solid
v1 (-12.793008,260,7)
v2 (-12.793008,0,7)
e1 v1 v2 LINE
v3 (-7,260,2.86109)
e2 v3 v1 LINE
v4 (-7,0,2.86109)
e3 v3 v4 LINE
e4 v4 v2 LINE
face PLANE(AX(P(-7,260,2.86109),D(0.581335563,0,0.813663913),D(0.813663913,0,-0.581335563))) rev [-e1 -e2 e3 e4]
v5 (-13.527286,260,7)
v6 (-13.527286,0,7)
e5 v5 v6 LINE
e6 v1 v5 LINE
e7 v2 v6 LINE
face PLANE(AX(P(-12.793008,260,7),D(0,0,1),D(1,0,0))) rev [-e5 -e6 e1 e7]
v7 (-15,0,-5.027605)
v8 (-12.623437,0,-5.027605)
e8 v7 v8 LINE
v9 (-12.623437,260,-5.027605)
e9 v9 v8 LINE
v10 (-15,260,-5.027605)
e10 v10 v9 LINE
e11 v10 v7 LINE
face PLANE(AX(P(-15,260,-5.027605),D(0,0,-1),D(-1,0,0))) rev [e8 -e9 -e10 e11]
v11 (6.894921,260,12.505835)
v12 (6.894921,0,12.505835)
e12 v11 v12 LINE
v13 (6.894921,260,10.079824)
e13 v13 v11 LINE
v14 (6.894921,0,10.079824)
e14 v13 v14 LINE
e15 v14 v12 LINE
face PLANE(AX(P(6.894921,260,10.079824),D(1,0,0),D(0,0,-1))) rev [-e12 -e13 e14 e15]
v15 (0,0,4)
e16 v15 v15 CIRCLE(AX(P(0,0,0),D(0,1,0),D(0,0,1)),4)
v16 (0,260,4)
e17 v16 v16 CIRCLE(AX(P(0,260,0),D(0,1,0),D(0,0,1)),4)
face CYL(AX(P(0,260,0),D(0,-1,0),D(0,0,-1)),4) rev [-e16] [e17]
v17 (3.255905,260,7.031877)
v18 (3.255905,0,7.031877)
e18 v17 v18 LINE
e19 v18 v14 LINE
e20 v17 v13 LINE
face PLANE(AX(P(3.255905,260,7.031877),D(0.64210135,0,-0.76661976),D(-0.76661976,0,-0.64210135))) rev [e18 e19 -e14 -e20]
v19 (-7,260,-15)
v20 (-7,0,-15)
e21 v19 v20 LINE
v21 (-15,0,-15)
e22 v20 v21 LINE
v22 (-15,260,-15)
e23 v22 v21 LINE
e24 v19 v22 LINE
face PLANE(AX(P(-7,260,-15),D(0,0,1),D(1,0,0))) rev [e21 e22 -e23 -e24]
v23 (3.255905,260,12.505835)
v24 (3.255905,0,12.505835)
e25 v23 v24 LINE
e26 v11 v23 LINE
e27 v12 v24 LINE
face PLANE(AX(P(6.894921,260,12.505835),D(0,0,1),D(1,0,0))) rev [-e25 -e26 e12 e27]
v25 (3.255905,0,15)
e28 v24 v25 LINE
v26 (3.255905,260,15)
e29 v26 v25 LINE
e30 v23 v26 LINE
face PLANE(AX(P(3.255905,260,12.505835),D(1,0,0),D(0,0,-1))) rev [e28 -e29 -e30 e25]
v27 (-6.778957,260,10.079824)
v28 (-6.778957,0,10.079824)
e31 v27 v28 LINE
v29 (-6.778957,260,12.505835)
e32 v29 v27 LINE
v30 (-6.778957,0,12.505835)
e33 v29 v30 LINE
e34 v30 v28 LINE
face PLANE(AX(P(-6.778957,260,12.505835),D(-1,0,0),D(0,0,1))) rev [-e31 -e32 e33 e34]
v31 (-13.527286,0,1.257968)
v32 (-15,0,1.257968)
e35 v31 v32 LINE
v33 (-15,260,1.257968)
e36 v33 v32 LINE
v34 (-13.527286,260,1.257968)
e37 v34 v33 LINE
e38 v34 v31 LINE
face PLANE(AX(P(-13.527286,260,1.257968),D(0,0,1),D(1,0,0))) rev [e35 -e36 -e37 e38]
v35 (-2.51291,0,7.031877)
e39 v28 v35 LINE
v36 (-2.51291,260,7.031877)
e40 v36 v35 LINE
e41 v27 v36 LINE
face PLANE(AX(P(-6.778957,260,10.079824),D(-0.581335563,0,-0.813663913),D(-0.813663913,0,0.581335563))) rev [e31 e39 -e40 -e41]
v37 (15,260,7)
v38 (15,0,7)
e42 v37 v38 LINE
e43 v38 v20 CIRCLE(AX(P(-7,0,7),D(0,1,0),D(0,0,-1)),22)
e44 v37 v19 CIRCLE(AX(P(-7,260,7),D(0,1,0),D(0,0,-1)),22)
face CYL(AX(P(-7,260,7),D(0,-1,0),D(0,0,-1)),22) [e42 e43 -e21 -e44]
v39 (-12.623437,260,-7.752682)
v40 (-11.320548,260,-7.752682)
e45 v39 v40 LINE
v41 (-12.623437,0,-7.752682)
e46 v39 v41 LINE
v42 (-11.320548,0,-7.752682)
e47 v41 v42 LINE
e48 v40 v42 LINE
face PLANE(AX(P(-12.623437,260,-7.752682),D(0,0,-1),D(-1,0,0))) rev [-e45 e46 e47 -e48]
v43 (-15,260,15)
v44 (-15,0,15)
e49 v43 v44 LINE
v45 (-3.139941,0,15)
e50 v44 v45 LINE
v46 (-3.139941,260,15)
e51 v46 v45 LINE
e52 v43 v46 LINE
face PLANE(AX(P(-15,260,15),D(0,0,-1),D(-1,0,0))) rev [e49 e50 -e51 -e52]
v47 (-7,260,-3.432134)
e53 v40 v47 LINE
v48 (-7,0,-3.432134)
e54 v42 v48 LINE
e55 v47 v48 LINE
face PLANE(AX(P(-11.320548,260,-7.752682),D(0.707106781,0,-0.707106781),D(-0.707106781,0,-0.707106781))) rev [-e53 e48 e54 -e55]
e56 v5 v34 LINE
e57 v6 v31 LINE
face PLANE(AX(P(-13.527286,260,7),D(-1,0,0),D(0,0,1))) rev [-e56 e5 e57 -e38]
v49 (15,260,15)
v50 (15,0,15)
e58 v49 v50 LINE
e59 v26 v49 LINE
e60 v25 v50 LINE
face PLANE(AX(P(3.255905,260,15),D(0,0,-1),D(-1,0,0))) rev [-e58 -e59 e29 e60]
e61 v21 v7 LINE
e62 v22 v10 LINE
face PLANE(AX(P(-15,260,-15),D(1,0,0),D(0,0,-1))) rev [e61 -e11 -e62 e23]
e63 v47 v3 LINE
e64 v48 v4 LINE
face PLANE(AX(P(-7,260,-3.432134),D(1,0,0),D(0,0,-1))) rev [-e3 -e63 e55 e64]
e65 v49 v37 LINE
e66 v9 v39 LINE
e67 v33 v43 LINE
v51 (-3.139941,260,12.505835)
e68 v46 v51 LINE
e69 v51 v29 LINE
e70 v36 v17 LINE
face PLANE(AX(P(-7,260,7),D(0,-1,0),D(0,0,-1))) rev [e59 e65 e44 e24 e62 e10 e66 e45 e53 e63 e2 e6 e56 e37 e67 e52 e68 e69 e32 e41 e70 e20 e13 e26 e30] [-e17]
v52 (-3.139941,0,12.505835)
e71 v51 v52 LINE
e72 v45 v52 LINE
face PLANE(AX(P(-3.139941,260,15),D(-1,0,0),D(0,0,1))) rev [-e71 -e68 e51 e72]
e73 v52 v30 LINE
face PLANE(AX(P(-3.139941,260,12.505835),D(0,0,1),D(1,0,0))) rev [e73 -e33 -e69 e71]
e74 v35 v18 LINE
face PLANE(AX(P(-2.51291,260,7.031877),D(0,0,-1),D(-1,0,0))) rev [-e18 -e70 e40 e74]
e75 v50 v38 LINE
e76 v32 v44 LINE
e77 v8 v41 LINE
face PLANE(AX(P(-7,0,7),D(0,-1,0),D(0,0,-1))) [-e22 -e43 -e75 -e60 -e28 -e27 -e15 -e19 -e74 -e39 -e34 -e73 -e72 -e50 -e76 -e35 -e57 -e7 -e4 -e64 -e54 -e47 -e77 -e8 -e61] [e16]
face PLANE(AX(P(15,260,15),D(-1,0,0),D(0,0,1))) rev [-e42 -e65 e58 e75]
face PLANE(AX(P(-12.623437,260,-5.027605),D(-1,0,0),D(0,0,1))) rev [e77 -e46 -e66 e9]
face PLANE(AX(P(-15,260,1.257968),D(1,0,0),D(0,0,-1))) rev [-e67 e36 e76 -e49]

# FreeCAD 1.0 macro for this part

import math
import FreeCAD as App
import Part
import Sketcher
from FreeCAD import Vector
Q = App.Units.Quantity

doc = App.newDocument("Part")
body = doc.addObject("PartDesign::Body", "Body")

sketch1 = body.newObject("Sketcher::SketchObject", "Sketch")
sketch1.AttachmentSupport = (doc.getObject("XZ_Plane"), [""])
sketch1.MapMode = "FlatFace"
sketch1.addGeometry(Part.LineSegment(Vector(-7, -15, 0), Vector(-15, -15, 0)), False)
sketch1.addGeometry(Part.LineSegment(Vector(-15, -15, 0), Vector(-15, -5, 0)), False)
sketch1.addGeometry(Part.LineSegment(Vector(-15, -5, 0), Vector(-12.6, -5, 0)), False)
sketch1.addGeometry(Part.LineSegment(Vector(-12.6, -5, 0), Vector(-12.6, -7.8, 0)), False)
sketch1.addGeometry(Part.LineSegment(Vector(-12.6, -7.8, 0), Vector(-11.3, -7.8, 0)), False)
sketch1.addGeometry(Part.LineSegment(Vector(-11.3, -7.8, 0), Vector(-7, -3.4, 0)), False)
sketch1.addGeometry(Part.LineSegment(Vector(-7, -3.4, 0), Vector(-7, 2.9, 0)), False)
sketch1.addGeometry(Part.LineSegment(Vector(-7, 2.9, 0), Vector(-12.8, 7, 0)), False)
sketch1.addGeometry(Part.LineSegment(Vector(-12.8, 7, 0), Vector(-13.5, 7, 0)), False)
sketch1.addGeometry(Part.LineSegment(Vector(-13.5, 7, 0), Vector(-13.5, 1.3, 0)), False)
sketch1.addGeometry(Part.LineSegment(Vector(-13.5, 1.3, 0), Vector(-15, 1.3, 0)), False)
sketch1.addGeometry(Part.LineSegment(Vector(-15, 1.3, 0), Vector(-15, 15, 0)), False)
sketch1.addGeometry(Part.LineSegment(Vector(-15, 15, 0), Vector(-3.1, 15, 0)), False)
sketch1.addGeometry(Part.LineSegment(Vector(-3.1, 15, 0), Vector(-3.1, 12.5, 0)), False)
sketch1.addGeometry(Part.LineSegment(Vector(-3.1, 12.5, 0), Vector(-6.8, 12.5, 0)), False)
sketch1.addGeometry(Part.LineSegment(Vector(-6.8, 12.5, 0), Vector(-6.8, 10.1, 0)), False)
sketch1.addGeometry(Part.LineSegment(Vector(-6.8, 10.1, 0), Vector(-2.5, 7, 0)), False)
sketch1.addGeometry(Part.LineSegment(Vector(-2.5, 7, 0), Vector(3.3, 7, 0)), False)
sketch1.addGeometry(Part.LineSegment(Vector(3.3, 7, 0), Vector(6.9, 10.1, 0)), False)
sketch1.addGeometry(Part.LineSegment(Vector(6.9, 10.1, 0), Vector(6.9, 12.5, 0)), False)
sketch1.addGeometry(Part.LineSegment(Vector(6.9, 12.5, 0), Vector(3.3, 12.5, 0)), False)
sketch1.addGeometry(Part.LineSegment(Vector(3.3, 12.5, 0), Vector(3.3, 15, 0)), False)
sketch1.addGeometry(Part.LineSegment(Vector(3.3, 15, 0), Vector(15, 15, 0)), False)
sketch1.addGeometry(Part.LineSegment(Vector(15, 15, 0), Vector(15, 7, 0)), False)
sketch1.addGeometry(Part.ArcOfCircle(Part.Circle(Vector(-7, 7, 0), Vector(0, 0, 1), 22), math.radians(-90), math.radians(0)), False)
sketch1.addGeometry(Part.Circle(Vector(0, 0, 0), Vector(0, 0, 1), 4), False)
sketch1.addConstraint(Sketcher.Constraint("Coincident", 0, 2, 1, 1))
sketch1.addConstraint(Sketcher.Constraint("Coincident", 1, 2, 2, 1))
sketch1.addConstraint(Sketcher.Constraint("Coincident", 2, 2, 3, 1))
sketch1.addConstraint(Sketcher.Constraint("Coincident", 3, 2, 4, 1))
sketch1.addConstraint(Sketcher.Constraint("Coincident", 4, 2, 5, 1))
sketch1.addConstraint(Sketcher.Constraint("Coincident", 5, 2, 6, 1))
sketch1.addConstraint(Sketcher.Constraint("Coincident", 6, 2, 7, 1))
sketch1.addConstraint(Sketcher.Constraint("Coincident", 7, 2, 8, 1))
sketch1.addConstraint(Sketcher.Constraint("Coincident", 8, 2, 9, 1))
sketch1.addConstraint(Sketcher.Constraint("Coincident", 9, 2, 10, 1))
sketch1.addConstraint(Sketcher.Constraint("Coincident", 10, 2, 11, 1))
sketch1.addConstraint(Sketcher.Constraint("Coincident", 11, 2, 12, 1))
sketch1.addConstraint(Sketcher.Constraint("Coincident", 12, 2, 13, 1))
sketch1.addConstraint(Sketcher.Constraint("Coincident", 13, 2, 14, 1))
sketch1.addConstraint(Sketcher.Constraint("Coincident", 14, 2, 15, 1))
sketch1.addConstraint(Sketcher.Constraint("Coincident", 15, 2, 16, 1))
sketch1.addConstraint(Sketcher.Constraint("Coincident", 16, 2, 17, 1))
sketch1.addConstraint(Sketcher.Constraint("Coincident", 17, 2, 18, 1))
sketch1.addConstraint(Sketcher.Constraint("Coincident", 18, 2, 19, 1))
sketch1.addConstraint(Sketcher.Constraint("Coincident", 19, 2, 20, 1))
sketch1.addConstraint(Sketcher.Constraint("Coincident", 20, 2, 21, 1))
sketch1.addConstraint(Sketcher.Constraint("Coincident", 21, 2, 22, 1))
sketch1.addConstraint(Sketcher.Constraint("Coincident", 22, 2, 23, 1))
sketch1.addConstraint(Sketcher.Constraint("Tangent", 23, 2, 24, 2))
sketch1.addConstraint(Sketcher.Constraint("Tangent", 24, 1, 0, 1))
sketch1.addConstraint(Sketcher.Constraint("Horizontal", 0))
sketch1.addConstraint(Sketcher.Constraint("Vertical", 1))
sketch1.addConstraint(Sketcher.Constraint("Horizontal", 2))
sketch1.addConstraint(Sketcher.Constraint("Vertical", 3))
sketch1.addConstraint(Sketcher.Constraint("Horizontal", 4))
sketch1.addConstraint(Sketcher.Constraint("Vertical", 6))
sketch1.addConstraint(Sketcher.Constraint("Horizontal", 8))
sketch1.addConstraint(Sketcher.Constraint("Vertical", 9))
sketch1.addConstraint(Sketcher.Constraint("Horizontal", 10))
sketch1.addConstraint(Sketcher.Constraint("Vertical", 11))
sketch1.addConstraint(Sketcher.Constraint("Horizontal", 12))
sketch1.addConstraint(Sketcher.Constraint("Vertical", 13))
sketch1.addConstraint(Sketcher.Constraint("Horizontal", 14))
sketch1.addConstraint(Sketcher.Constraint("Vertical", 15))
sketch1.addConstraint(Sketcher.Constraint("Horizontal", 17))
sketch1.addConstraint(Sketcher.Constraint("Vertical", 19))
sketch1.addConstraint(Sketcher.Constraint("Horizontal", 20))
sketch1.addConstraint(Sketcher.Constraint("Vertical", 21))
sketch1.addConstraint(Sketcher.Constraint("Horizontal", 22))
sketch1.addConstraint(Sketcher.Constraint("Vertical", 23))
sketch1.addConstraint(Sketcher.Constraint("Coincident", 25, 3, -1, 1))
sketch1.addConstraint(Sketcher.Constraint("Symmetric", 0, 2, 22, 2, -1, 1))
sketch1.addConstraint(Sketcher.Constraint("Symmetric", 11, 2, 22, 2, -2))
sketch1.addConstraint(Sketcher.Constraint("Parallel", 7, 16))
sketch1.addConstraint(Sketcher.Constraint("Horizontal", 24, 3, 7, 2))
sketch1.addConstraint(Sketcher.Constraint("Horizontal", 15, 2, 18, 2))
sketch1.addConstraint(Sketcher.Constraint("Horizontal", 14, 2, 19, 2))
sketch1.addConstraint(Sketcher.Constraint("Vertical", 24, 3, 5, 2))
sketch1.addConstraint(Sketcher.Constraint("Vertical", 17, 2, 20, 2))
sketch1.addConstraint(Sketcher.Constraint("Equal", 14, 20))
sketch1.addConstraint(Sketcher.Constraint("Equal", 0, 23))
sketch1.addConstraint(Sketcher.Constraint("Diameter", 25, 8.0))
sketch1.addConstraint(Sketcher.Constraint("Radius", 24, 22.0))
sketch1.addConstraint(Sketcher.Constraint("DistanceX", 0, 2, 0, 1, 8.0))
sketch1.addConstraint(Sketcher.Constraint("Angle", 5, Q("45 deg")))
sketch1.addConstraint(Sketcher.Constraint("DistanceX", 4, 1, 4, 2, 1.302889))
sketch1.addConstraint(Sketcher.Constraint("DistanceX", 8, 2, 8, 1, 0.734278))
sketch1.addConstraint(Sketcher.Constraint("DistanceX", 12, 1, 12, 2, 11.860059))
sketch1.addConstraint(Sketcher.Constraint("DistanceY", 15, 2, 15, 1, 2.426011))
sketch1.addConstraint(Sketcher.Constraint("Distance", 5, 6.110178))
sketch1.addConstraint(Sketcher.Constraint("Distance", 16, 5.243009))
sketch1.addConstraint(Sketcher.Constraint("DistanceX", 10, 2, 10, 1, 1.472714))
sketch1.addConstraint(Sketcher.Constraint("DistanceX", 14, 2, 14, 1, 3.639016))
sketch1.addConstraint(Sketcher.Constraint("DistanceX", 17, 1, 17, 2, 5.768814))
sketch1.addConstraint(Sketcher.Constraint("DistanceX", 22, 1, 22, 2, 11.744095))
sketch1.addConstraint(Sketcher.Constraint("DistanceY", 1, 1, 1, 2, 9.972395))
sketch1.addConstraint(Sketcher.Constraint("DistanceY", 3, 2, 3, 1, 2.725077))
sketch1.addConstraint(Sketcher.Constraint("DistanceY", 9, 2, 9, 1, 5.742032))
sketch1.addConstraint(Sketcher.Constraint("DistanceY", 13, 2, 13, 1, 2.494165))
pad1 = body.newObject("PartDesign::Pad", "Pad")
pad1.Profile = sketch1
pad1.Length = 260
pad1.Reversed = True

doc.recompute()
